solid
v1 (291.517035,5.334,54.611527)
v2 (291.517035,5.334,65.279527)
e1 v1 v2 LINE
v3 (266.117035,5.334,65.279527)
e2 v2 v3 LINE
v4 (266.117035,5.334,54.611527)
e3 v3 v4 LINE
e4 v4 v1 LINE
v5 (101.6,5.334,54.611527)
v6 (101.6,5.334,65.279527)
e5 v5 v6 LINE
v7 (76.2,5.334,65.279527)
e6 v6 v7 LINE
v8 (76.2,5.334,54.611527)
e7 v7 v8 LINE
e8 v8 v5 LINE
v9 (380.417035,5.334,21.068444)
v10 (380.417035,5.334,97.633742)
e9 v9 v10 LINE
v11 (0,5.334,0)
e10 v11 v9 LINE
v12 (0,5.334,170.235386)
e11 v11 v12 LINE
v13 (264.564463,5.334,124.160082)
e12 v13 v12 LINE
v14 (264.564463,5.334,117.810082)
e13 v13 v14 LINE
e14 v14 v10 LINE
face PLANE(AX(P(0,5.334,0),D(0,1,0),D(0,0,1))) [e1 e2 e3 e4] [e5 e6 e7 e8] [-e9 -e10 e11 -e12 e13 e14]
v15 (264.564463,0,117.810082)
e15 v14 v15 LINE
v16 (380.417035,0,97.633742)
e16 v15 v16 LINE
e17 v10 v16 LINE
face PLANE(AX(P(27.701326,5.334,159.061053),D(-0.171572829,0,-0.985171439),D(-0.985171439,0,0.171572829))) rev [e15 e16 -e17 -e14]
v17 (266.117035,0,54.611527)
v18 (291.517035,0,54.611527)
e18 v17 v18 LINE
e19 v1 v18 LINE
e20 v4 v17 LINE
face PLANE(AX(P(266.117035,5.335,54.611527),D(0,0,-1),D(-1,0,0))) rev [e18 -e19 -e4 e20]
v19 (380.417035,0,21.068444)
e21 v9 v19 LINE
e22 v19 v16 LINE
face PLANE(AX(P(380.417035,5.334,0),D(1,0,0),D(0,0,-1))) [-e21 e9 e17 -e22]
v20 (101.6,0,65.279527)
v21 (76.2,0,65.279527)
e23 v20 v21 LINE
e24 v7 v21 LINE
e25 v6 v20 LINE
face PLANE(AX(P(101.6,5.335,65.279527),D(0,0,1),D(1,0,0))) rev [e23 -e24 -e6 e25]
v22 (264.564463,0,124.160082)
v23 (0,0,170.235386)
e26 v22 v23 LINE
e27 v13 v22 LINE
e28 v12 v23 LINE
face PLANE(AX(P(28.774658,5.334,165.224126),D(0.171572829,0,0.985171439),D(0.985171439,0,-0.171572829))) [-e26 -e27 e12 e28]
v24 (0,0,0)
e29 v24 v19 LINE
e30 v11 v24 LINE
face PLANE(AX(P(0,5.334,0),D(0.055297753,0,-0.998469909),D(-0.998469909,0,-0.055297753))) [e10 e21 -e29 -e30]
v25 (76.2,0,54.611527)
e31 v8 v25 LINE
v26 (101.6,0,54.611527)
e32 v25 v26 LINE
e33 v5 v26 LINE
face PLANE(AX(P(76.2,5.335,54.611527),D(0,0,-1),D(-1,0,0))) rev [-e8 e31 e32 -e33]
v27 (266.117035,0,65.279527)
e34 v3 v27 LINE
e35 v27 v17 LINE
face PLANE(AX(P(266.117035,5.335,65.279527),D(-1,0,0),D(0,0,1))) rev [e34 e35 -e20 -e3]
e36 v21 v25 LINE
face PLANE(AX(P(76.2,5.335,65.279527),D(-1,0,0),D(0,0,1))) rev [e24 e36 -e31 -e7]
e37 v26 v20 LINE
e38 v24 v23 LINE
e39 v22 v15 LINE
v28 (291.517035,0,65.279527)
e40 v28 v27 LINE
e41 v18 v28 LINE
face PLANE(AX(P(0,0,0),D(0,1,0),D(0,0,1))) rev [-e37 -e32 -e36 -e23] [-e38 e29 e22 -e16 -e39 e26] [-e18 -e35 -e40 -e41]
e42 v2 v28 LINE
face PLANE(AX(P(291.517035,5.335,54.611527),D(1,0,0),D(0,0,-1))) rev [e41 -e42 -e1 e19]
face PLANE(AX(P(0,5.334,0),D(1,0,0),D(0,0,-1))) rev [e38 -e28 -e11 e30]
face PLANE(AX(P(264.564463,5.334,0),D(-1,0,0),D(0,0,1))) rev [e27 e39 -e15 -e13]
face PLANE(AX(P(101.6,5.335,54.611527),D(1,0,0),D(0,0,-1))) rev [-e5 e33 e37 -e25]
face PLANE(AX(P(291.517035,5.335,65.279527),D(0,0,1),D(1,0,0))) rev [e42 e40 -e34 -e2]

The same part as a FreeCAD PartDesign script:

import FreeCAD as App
import Part
import Sketcher

V = App.Vector
Q = App.Units.Quantity


def add_polygon(sketch, points):
    """Adds a closed chain of lines whose ends are joined by coincident constraints."""
    first, n = sketch.GeometryCount, len(points)
    for a, b in zip(points, points[1:] + points[:1]):
        sketch.addGeometry(Part.LineSegment(App.Vector(*a, 0), App.Vector(*b, 0)), False)
    for i in range(n):
        sketch.addConstraint(Sketcher.Constraint("Coincident", first + i, 2, first + (i + 1) % n, 1))

doc = App.newDocument("Part")
params = doc.addObject("Spreadsheet::Sheet", "Params")
for row, (alias, value) in enumerate([
    ("sketch1_length", "15 in"),
    ("sketch1_height", "0.25 in"),
    ("pad1_length", "0.21 in"),
    ("sketch2_width", "1 in"),
    ("sketch2_height", "0.42 in"),
    ("sketch3_width", "1 in"),
    ("sketch3_height", "0.42 in"),
], start=1):
    params.set(f"A{row}", alias)
    params.set(f"B{row}", "=" + value)
    params.setAlias(f"B{row}", alias)

body = doc.addObject("PartDesign::Body", "Body")

sketch1 = body.newObject("Sketcher::SketchObject", "Sketch")
sketch1.AttachmentSupport = (doc.getObject("XZ_Plane"), [""])
sketch1.MapMode = "FlatFace"
add_polygon(sketch1, [(380.417035, 21.068444), (0, 0), (0, 170.235386), (264.564463, 124.160082), (264.564463, 117.810082), (380.417035, 97.633742)])
sketch1.addConstraint([
    Sketcher.Constraint("Vertical", 1),
    Sketcher.Constraint("Vertical", 3),
    Sketcher.Constraint("Vertical", 5),
    Sketcher.Constraint("Coincident", 0, 2, -1, 1),
    Sketcher.Constraint("Parallel", 2, 4),
    Sketcher.Constraint("Distance", 0, Q("15 in")),
    Sketcher.Constraint("DistanceY", 3, 2, 3, 1, Q("0.25 in")),
    Sketcher.Constraint("DistanceY", 5, 2, 5, 1, 76.565298),
    Sketcher.Constraint("DistanceY", 1, 1, 1, 2, 170.235386),
    Sketcher.Constraint("DistanceY", -1, 1, 2, 2, 124.160082),
    Sketcher.Constraint("DistanceX", 3, 2, 4, 2, 115.852572),
])
sketch1.setExpression("Constraints[11]", "Params.sketch1_length")
sketch1.setExpression("Constraints[12]", "Params.sketch1_height")
pad1 = body.newObject("PartDesign::Pad", "Pad")
pad1.Profile = sketch1
pad1.setExpression("Length", "Params.pad1_length")
pad1.Reversed = True

sketch2 = body.newObject("Sketcher::SketchObject", "Sketch001")
sketch2.AttachmentSupport = (doc.getObject("XZ_Plane"), [""])
sketch2.MapMode = "FlatFace"
add_polygon(sketch2, [(266.117035, 65.279527), (266.117035, 54.611527), (291.517035, 54.611527), (291.517035, 65.279527)])
sketch2.addConstraint([
    Sketcher.Constraint("Vertical", 0),
    Sketcher.Constraint("Horizontal", 1),
    Sketcher.Constraint("Vertical", 2),
    Sketcher.Constraint("Horizontal", 3),
    Sketcher.Constraint("DistanceX", 1, 1, 1, 2, Q("1 in")),
    Sketcher.Constraint("DistanceY", 0, 2, 0, 1, Q("0.42 in")),
    Sketcher.Constraint("DistanceX", -1, 1, 0, 2, 266.117035),
    Sketcher.Constraint("DistanceY", -1, 1, 0, 2, 54.611527),
])
sketch2.setExpression("Constraints[8]", "Params.sketch2_width")
sketch2.setExpression("Constraints[9]", "Params.sketch2_height")
pocket1 = body.newObject("PartDesign::Pocket", "Pocket")
pocket1.Profile = sketch2
pocket1.Type = "UpToFirst"

sketch3 = body.newObject("Sketcher::SketchObject", "Sketch002")
sketch3.AttachmentSupport = (doc.getObject("XZ_Plane"), [""])
sketch3.MapMode = "FlatFace"
add_polygon(sketch3, [(76.2, 65.279527), (76.2, 54.611527), (101.6, 54.611527), (101.6, 65.279527)])
sketch3.addConstraint([
    Sketcher.Constraint("Vertical", 0),
    Sketcher.Constraint("Horizontal", 1),
    Sketcher.Constraint("Vertical", 2),
    Sketcher.Constraint("Horizontal", 3),
    Sketcher.Constraint("DistanceX", 1, 1, 1, 2, Q("1 in")),
    Sketcher.Constraint("DistanceX", -1, 1, 0, 2, Q("3 in")),
    Sketcher.Constraint("DistanceY", 0, 2, 0, 1, Q("0.42 in")),
    Sketcher.Constraint("DistanceY", -1, 1, 0, 2, 54.611527),
])
sketch3.setExpression("Constraints[8]", "Params.sketch3_width")
sketch3.setExpression("Constraints[10]", "Params.sketch3_height")
pocket2 = body.newObject("PartDesign::Pocket", "Pocket001")
pocket2.Profile = sketch3
pocket2.Type = "UpToFirst"

doc.recompute()
